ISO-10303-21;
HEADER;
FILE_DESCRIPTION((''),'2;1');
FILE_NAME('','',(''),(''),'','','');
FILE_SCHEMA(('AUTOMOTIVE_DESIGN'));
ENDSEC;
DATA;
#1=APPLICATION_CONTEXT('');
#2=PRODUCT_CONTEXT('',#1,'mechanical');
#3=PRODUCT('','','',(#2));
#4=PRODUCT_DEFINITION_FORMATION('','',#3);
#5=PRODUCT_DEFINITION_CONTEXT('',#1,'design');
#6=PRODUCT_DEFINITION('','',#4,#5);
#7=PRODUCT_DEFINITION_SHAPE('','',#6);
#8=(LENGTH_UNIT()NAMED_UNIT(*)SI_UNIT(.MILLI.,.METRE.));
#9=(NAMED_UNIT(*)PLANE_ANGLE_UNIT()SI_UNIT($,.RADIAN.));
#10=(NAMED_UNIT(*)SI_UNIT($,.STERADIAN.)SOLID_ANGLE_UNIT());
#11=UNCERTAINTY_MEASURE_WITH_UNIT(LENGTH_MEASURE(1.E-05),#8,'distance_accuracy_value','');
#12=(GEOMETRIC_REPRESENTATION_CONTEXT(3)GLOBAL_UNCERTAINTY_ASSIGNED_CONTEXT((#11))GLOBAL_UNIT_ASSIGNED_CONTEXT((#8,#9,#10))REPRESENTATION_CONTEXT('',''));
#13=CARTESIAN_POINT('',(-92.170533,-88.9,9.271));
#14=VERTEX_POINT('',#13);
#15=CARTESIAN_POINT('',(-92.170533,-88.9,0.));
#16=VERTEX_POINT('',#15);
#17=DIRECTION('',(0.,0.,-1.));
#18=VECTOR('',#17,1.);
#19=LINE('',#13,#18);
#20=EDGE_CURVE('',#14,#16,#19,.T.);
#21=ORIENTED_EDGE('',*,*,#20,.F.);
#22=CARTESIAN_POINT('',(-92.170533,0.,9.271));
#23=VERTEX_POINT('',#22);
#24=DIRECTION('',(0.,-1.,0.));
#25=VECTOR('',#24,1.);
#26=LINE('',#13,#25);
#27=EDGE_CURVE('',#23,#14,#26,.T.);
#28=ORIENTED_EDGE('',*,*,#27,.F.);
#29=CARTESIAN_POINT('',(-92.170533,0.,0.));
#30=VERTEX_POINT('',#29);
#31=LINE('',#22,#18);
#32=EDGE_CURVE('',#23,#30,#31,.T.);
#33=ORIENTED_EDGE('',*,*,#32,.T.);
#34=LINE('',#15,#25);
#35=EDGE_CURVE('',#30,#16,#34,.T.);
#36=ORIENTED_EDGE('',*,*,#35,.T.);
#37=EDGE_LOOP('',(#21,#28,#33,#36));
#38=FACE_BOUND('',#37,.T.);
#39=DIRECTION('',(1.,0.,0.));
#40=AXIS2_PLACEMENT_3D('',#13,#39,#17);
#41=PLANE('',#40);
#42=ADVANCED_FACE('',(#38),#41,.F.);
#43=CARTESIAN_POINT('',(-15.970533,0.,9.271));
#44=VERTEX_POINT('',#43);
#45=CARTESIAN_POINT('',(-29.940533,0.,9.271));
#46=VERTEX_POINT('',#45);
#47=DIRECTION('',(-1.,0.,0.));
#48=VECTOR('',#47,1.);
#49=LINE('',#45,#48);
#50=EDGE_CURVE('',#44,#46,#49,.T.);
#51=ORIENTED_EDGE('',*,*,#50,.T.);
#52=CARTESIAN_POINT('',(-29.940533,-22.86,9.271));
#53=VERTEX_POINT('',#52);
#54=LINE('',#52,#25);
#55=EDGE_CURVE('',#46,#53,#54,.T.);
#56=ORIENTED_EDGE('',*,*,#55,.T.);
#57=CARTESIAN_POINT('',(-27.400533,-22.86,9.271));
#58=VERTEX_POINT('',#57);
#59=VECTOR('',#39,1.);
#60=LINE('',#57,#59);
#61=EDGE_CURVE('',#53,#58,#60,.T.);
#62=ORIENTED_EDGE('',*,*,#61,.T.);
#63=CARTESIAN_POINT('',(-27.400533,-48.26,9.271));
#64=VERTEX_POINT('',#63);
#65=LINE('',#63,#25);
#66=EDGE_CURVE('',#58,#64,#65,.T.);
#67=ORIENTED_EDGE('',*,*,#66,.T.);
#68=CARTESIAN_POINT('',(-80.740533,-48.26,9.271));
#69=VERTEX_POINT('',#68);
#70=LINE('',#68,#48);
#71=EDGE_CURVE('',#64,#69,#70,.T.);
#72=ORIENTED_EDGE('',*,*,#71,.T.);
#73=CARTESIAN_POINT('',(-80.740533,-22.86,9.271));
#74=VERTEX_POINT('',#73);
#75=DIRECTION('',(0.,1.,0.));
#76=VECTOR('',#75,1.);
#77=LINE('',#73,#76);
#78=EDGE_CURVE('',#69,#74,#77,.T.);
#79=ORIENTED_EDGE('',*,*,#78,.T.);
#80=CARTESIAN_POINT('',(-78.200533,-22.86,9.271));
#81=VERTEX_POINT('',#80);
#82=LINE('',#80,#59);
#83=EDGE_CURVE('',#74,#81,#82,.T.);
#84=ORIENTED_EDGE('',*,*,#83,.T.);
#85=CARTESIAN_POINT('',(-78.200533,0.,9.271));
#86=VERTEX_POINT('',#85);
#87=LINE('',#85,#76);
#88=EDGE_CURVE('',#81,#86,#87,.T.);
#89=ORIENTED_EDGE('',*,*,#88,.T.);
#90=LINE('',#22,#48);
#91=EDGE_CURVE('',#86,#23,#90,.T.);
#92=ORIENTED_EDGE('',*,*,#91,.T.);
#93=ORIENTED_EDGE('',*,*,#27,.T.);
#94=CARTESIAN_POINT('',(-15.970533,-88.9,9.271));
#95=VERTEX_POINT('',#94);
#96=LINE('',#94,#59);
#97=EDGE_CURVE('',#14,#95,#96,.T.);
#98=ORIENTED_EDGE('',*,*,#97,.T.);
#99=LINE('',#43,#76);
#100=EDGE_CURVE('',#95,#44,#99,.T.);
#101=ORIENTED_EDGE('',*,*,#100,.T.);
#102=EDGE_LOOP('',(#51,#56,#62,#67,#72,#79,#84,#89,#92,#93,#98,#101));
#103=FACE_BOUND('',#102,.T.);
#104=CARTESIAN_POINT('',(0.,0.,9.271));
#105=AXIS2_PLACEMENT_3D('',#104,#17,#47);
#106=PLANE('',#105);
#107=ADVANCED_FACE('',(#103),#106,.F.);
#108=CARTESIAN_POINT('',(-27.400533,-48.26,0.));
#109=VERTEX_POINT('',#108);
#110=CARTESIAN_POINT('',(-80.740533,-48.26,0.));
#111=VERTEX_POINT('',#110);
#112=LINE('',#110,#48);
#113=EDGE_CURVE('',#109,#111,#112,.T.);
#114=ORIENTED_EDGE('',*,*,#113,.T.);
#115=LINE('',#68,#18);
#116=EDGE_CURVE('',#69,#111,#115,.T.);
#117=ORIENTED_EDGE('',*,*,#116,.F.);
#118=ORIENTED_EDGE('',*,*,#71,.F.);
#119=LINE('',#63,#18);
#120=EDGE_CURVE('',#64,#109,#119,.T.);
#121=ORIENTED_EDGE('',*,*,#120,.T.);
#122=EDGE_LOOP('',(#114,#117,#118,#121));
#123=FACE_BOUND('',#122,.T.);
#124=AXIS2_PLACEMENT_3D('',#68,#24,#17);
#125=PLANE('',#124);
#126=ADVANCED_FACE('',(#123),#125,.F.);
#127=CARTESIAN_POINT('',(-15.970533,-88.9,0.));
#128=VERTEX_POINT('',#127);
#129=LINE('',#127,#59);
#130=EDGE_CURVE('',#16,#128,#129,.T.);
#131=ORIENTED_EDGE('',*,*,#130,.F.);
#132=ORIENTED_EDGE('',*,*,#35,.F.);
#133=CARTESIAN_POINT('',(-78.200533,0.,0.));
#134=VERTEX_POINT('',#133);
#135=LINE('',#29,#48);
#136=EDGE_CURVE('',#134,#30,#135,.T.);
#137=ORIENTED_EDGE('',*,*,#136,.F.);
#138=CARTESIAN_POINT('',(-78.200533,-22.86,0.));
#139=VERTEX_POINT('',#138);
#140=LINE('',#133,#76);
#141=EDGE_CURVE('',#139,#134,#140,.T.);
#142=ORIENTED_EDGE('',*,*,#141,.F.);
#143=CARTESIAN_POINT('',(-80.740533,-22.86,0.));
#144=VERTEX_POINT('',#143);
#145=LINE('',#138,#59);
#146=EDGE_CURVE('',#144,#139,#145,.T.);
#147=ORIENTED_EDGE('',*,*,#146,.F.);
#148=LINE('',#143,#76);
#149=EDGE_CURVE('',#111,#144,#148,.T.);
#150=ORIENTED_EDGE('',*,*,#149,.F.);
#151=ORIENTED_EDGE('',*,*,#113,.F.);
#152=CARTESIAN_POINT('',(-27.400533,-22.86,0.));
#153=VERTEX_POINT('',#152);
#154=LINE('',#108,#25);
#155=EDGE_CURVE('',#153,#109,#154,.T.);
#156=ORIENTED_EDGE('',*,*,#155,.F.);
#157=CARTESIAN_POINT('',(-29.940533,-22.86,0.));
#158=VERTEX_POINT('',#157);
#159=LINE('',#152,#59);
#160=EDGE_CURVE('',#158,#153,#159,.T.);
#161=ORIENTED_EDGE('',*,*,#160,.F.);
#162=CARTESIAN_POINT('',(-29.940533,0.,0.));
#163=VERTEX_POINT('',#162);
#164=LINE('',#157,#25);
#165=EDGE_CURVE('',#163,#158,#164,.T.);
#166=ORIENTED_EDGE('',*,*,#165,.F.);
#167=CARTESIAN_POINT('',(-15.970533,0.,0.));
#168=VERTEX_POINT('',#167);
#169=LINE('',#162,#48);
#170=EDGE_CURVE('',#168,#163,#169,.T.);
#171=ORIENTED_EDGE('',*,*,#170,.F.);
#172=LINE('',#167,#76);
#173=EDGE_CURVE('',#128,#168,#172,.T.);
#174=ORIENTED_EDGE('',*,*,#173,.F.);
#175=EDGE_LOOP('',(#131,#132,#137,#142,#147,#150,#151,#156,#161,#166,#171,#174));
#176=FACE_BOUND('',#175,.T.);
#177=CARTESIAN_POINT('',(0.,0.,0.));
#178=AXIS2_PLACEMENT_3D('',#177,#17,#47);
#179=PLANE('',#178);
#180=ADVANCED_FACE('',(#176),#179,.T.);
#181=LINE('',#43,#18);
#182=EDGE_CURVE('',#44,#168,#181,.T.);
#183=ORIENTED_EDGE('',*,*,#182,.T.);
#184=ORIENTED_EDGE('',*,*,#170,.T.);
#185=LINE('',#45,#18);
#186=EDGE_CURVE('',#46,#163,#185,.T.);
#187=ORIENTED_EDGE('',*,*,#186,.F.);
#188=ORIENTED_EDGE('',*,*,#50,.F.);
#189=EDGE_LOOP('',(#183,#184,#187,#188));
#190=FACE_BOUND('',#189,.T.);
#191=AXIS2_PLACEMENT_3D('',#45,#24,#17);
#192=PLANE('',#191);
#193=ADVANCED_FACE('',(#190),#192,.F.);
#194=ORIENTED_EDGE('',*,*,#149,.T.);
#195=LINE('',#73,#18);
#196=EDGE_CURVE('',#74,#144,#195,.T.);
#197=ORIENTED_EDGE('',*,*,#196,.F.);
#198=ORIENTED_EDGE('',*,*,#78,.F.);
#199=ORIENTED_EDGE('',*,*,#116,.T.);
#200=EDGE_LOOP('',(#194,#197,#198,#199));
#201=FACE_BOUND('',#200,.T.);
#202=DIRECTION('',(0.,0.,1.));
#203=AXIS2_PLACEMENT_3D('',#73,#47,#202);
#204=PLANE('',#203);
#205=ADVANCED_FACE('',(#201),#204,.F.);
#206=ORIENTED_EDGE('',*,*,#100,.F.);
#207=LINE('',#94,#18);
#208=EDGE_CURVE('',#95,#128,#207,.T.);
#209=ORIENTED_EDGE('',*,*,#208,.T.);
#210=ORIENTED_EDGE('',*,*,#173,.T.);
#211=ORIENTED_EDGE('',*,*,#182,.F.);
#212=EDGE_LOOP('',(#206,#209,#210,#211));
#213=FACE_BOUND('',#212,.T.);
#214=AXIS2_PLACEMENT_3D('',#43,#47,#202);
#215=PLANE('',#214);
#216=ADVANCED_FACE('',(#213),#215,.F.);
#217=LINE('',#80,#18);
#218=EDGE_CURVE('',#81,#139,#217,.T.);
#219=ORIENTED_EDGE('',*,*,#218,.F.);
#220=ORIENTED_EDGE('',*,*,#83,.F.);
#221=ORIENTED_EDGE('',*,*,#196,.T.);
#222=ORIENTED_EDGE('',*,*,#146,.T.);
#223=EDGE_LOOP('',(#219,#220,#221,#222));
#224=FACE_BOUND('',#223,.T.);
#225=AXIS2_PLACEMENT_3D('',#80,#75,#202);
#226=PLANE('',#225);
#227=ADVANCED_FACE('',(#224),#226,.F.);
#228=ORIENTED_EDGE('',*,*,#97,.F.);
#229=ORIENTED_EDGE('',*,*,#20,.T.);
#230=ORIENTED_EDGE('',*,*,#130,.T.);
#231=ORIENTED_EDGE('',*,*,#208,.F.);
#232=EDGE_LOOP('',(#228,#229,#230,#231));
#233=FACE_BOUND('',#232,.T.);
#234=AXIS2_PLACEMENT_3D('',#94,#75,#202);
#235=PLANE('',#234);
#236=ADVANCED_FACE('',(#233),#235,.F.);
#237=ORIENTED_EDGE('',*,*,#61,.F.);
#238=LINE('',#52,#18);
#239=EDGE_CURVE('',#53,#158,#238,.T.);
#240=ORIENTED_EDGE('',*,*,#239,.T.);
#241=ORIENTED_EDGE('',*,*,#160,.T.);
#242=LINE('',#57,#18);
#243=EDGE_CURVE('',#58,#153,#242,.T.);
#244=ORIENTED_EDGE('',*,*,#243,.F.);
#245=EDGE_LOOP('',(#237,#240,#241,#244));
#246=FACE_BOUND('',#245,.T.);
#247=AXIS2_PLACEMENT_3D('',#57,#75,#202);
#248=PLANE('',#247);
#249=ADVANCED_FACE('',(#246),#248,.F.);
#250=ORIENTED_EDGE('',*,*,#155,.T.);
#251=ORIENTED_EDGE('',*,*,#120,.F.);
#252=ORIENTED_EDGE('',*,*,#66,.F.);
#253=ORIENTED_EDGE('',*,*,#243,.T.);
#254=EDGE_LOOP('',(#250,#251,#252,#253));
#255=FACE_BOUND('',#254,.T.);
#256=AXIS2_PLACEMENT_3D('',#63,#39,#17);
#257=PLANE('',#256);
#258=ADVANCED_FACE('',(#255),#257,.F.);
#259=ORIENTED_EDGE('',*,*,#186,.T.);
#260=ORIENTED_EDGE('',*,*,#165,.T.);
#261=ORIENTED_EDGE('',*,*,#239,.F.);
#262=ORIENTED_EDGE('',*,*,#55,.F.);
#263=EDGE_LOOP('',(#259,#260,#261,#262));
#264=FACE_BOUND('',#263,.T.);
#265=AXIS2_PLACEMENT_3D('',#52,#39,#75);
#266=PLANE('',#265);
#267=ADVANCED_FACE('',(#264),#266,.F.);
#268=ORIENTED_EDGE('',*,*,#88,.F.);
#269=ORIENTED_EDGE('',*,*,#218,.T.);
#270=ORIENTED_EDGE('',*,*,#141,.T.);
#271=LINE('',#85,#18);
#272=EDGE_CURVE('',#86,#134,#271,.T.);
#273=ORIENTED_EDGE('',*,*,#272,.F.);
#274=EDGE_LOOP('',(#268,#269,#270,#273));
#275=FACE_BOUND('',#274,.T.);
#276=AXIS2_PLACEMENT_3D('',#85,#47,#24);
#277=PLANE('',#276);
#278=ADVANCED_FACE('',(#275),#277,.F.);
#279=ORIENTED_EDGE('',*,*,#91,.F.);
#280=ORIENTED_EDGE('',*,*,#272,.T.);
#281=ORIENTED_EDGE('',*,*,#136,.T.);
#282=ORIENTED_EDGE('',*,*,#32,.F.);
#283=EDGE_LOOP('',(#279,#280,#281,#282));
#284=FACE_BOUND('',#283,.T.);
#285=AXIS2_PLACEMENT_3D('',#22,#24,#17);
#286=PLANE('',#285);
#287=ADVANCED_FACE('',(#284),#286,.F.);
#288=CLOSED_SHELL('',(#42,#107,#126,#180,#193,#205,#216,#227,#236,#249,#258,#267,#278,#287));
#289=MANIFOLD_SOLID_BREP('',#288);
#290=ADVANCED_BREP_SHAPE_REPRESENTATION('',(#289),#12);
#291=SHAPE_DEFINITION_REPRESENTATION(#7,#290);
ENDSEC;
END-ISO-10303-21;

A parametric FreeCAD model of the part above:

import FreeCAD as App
import Part
import Sketcher

V = App.Vector
Q = App.Units.Quantity


def add_polygon(sketch, points):
    """Adds a closed chain of lines whose ends are joined by coincident constraints."""
    first, n = sketch.GeometryCount, len(points)
    for a, b in zip(points, points[1:] + points[:1]):
        sketch.addGeometry(Part.LineSegment(App.Vector(*a, 0), App.Vector(*b, 0)), False)
    for i in range(n):
        sketch.addConstraint(Sketcher.Constraint("Coincident", first + i, 2, first + (i + 1) % n, 1))

doc = App.newDocument("Part")
body = doc.addObject("PartDesign::Body", "Body")

# Sketch on XY plane
sketch1 = body.newObject("Sketcher::SketchObject", "Sketch")
sketch1.AttachmentSupport = (doc.getObject("XY_Plane"), [""])
sketch1.MapMode = "FlatFace"
add_polygon(sketch1, [(-78.2, -22.9), (-78.2, 0), (-92.2, 0), (-92.2, -88.9), (-16, -88.9), (-16, 0), (-29.9, 0), (-29.9, -22.9), (-27.4, -22.9), (-27.4, -48.3), (-80.7, -48.3), (-80.7, -22.9)])  # lines 0-11
sketch1.addConstraint([
    Sketcher.Constraint("Vertical", 0),
    Sketcher.Constraint("Horizontal", 1),
    Sketcher.Constraint("Vertical", 2),
    Sketcher.Constraint("Horizontal", 3),
    Sketcher.Constraint("Vertical", 4),
    Sketcher.Constraint("Horizontal", 5),
    Sketcher.Constraint("Vertical", 6),
    Sketcher.Constraint("Horizontal", 7),
    Sketcher.Constraint("Vertical", 8),
    Sketcher.Constraint("Horizontal", 9),
    Sketcher.Constraint("Vertical", 10),
    Sketcher.Constraint("Horizontal", 11),
    Sketcher.Constraint("PointOnObject", 0, 2, -1),
    Sketcher.Constraint("PointOnObject", 4, 2, -1),
    Sketcher.Constraint("Horizontal", 7, 2, 10, 2),
    Sketcher.Constraint("Equal", 1, 5),
    Sketcher.Constraint("Equal", 7, 11),
    Sketcher.Constraint("DistanceX", 3, 1, 3, 2, Q("3 in")),
    Sketcher.Constraint("DistanceY", 8, 2, 8, 1, Q("1 in")),
    Sketcher.Constraint("DistanceX", 7, 1, 7, 2, Q("0.1 in")),
    Sketcher.Constraint("DistanceX", 9, 2, 9, 1, Q("2.1 in")),
    Sketcher.Constraint("DistanceY", 0, 1, 0, 2, Q("0.9 in")),
    Sketcher.Constraint("DistanceY", 2, 2, 2, 1, Q("3.5 in")),
    Sketcher.Constraint("DistanceX", 0, 2, -1, 1, Q("78.200533 mm")),
])
pad1 = body.newObject("PartDesign::Pad", "Pad")
pad1.Profile = sketch1
pad1.Length = Q("0.365 in")

doc.recompute()
